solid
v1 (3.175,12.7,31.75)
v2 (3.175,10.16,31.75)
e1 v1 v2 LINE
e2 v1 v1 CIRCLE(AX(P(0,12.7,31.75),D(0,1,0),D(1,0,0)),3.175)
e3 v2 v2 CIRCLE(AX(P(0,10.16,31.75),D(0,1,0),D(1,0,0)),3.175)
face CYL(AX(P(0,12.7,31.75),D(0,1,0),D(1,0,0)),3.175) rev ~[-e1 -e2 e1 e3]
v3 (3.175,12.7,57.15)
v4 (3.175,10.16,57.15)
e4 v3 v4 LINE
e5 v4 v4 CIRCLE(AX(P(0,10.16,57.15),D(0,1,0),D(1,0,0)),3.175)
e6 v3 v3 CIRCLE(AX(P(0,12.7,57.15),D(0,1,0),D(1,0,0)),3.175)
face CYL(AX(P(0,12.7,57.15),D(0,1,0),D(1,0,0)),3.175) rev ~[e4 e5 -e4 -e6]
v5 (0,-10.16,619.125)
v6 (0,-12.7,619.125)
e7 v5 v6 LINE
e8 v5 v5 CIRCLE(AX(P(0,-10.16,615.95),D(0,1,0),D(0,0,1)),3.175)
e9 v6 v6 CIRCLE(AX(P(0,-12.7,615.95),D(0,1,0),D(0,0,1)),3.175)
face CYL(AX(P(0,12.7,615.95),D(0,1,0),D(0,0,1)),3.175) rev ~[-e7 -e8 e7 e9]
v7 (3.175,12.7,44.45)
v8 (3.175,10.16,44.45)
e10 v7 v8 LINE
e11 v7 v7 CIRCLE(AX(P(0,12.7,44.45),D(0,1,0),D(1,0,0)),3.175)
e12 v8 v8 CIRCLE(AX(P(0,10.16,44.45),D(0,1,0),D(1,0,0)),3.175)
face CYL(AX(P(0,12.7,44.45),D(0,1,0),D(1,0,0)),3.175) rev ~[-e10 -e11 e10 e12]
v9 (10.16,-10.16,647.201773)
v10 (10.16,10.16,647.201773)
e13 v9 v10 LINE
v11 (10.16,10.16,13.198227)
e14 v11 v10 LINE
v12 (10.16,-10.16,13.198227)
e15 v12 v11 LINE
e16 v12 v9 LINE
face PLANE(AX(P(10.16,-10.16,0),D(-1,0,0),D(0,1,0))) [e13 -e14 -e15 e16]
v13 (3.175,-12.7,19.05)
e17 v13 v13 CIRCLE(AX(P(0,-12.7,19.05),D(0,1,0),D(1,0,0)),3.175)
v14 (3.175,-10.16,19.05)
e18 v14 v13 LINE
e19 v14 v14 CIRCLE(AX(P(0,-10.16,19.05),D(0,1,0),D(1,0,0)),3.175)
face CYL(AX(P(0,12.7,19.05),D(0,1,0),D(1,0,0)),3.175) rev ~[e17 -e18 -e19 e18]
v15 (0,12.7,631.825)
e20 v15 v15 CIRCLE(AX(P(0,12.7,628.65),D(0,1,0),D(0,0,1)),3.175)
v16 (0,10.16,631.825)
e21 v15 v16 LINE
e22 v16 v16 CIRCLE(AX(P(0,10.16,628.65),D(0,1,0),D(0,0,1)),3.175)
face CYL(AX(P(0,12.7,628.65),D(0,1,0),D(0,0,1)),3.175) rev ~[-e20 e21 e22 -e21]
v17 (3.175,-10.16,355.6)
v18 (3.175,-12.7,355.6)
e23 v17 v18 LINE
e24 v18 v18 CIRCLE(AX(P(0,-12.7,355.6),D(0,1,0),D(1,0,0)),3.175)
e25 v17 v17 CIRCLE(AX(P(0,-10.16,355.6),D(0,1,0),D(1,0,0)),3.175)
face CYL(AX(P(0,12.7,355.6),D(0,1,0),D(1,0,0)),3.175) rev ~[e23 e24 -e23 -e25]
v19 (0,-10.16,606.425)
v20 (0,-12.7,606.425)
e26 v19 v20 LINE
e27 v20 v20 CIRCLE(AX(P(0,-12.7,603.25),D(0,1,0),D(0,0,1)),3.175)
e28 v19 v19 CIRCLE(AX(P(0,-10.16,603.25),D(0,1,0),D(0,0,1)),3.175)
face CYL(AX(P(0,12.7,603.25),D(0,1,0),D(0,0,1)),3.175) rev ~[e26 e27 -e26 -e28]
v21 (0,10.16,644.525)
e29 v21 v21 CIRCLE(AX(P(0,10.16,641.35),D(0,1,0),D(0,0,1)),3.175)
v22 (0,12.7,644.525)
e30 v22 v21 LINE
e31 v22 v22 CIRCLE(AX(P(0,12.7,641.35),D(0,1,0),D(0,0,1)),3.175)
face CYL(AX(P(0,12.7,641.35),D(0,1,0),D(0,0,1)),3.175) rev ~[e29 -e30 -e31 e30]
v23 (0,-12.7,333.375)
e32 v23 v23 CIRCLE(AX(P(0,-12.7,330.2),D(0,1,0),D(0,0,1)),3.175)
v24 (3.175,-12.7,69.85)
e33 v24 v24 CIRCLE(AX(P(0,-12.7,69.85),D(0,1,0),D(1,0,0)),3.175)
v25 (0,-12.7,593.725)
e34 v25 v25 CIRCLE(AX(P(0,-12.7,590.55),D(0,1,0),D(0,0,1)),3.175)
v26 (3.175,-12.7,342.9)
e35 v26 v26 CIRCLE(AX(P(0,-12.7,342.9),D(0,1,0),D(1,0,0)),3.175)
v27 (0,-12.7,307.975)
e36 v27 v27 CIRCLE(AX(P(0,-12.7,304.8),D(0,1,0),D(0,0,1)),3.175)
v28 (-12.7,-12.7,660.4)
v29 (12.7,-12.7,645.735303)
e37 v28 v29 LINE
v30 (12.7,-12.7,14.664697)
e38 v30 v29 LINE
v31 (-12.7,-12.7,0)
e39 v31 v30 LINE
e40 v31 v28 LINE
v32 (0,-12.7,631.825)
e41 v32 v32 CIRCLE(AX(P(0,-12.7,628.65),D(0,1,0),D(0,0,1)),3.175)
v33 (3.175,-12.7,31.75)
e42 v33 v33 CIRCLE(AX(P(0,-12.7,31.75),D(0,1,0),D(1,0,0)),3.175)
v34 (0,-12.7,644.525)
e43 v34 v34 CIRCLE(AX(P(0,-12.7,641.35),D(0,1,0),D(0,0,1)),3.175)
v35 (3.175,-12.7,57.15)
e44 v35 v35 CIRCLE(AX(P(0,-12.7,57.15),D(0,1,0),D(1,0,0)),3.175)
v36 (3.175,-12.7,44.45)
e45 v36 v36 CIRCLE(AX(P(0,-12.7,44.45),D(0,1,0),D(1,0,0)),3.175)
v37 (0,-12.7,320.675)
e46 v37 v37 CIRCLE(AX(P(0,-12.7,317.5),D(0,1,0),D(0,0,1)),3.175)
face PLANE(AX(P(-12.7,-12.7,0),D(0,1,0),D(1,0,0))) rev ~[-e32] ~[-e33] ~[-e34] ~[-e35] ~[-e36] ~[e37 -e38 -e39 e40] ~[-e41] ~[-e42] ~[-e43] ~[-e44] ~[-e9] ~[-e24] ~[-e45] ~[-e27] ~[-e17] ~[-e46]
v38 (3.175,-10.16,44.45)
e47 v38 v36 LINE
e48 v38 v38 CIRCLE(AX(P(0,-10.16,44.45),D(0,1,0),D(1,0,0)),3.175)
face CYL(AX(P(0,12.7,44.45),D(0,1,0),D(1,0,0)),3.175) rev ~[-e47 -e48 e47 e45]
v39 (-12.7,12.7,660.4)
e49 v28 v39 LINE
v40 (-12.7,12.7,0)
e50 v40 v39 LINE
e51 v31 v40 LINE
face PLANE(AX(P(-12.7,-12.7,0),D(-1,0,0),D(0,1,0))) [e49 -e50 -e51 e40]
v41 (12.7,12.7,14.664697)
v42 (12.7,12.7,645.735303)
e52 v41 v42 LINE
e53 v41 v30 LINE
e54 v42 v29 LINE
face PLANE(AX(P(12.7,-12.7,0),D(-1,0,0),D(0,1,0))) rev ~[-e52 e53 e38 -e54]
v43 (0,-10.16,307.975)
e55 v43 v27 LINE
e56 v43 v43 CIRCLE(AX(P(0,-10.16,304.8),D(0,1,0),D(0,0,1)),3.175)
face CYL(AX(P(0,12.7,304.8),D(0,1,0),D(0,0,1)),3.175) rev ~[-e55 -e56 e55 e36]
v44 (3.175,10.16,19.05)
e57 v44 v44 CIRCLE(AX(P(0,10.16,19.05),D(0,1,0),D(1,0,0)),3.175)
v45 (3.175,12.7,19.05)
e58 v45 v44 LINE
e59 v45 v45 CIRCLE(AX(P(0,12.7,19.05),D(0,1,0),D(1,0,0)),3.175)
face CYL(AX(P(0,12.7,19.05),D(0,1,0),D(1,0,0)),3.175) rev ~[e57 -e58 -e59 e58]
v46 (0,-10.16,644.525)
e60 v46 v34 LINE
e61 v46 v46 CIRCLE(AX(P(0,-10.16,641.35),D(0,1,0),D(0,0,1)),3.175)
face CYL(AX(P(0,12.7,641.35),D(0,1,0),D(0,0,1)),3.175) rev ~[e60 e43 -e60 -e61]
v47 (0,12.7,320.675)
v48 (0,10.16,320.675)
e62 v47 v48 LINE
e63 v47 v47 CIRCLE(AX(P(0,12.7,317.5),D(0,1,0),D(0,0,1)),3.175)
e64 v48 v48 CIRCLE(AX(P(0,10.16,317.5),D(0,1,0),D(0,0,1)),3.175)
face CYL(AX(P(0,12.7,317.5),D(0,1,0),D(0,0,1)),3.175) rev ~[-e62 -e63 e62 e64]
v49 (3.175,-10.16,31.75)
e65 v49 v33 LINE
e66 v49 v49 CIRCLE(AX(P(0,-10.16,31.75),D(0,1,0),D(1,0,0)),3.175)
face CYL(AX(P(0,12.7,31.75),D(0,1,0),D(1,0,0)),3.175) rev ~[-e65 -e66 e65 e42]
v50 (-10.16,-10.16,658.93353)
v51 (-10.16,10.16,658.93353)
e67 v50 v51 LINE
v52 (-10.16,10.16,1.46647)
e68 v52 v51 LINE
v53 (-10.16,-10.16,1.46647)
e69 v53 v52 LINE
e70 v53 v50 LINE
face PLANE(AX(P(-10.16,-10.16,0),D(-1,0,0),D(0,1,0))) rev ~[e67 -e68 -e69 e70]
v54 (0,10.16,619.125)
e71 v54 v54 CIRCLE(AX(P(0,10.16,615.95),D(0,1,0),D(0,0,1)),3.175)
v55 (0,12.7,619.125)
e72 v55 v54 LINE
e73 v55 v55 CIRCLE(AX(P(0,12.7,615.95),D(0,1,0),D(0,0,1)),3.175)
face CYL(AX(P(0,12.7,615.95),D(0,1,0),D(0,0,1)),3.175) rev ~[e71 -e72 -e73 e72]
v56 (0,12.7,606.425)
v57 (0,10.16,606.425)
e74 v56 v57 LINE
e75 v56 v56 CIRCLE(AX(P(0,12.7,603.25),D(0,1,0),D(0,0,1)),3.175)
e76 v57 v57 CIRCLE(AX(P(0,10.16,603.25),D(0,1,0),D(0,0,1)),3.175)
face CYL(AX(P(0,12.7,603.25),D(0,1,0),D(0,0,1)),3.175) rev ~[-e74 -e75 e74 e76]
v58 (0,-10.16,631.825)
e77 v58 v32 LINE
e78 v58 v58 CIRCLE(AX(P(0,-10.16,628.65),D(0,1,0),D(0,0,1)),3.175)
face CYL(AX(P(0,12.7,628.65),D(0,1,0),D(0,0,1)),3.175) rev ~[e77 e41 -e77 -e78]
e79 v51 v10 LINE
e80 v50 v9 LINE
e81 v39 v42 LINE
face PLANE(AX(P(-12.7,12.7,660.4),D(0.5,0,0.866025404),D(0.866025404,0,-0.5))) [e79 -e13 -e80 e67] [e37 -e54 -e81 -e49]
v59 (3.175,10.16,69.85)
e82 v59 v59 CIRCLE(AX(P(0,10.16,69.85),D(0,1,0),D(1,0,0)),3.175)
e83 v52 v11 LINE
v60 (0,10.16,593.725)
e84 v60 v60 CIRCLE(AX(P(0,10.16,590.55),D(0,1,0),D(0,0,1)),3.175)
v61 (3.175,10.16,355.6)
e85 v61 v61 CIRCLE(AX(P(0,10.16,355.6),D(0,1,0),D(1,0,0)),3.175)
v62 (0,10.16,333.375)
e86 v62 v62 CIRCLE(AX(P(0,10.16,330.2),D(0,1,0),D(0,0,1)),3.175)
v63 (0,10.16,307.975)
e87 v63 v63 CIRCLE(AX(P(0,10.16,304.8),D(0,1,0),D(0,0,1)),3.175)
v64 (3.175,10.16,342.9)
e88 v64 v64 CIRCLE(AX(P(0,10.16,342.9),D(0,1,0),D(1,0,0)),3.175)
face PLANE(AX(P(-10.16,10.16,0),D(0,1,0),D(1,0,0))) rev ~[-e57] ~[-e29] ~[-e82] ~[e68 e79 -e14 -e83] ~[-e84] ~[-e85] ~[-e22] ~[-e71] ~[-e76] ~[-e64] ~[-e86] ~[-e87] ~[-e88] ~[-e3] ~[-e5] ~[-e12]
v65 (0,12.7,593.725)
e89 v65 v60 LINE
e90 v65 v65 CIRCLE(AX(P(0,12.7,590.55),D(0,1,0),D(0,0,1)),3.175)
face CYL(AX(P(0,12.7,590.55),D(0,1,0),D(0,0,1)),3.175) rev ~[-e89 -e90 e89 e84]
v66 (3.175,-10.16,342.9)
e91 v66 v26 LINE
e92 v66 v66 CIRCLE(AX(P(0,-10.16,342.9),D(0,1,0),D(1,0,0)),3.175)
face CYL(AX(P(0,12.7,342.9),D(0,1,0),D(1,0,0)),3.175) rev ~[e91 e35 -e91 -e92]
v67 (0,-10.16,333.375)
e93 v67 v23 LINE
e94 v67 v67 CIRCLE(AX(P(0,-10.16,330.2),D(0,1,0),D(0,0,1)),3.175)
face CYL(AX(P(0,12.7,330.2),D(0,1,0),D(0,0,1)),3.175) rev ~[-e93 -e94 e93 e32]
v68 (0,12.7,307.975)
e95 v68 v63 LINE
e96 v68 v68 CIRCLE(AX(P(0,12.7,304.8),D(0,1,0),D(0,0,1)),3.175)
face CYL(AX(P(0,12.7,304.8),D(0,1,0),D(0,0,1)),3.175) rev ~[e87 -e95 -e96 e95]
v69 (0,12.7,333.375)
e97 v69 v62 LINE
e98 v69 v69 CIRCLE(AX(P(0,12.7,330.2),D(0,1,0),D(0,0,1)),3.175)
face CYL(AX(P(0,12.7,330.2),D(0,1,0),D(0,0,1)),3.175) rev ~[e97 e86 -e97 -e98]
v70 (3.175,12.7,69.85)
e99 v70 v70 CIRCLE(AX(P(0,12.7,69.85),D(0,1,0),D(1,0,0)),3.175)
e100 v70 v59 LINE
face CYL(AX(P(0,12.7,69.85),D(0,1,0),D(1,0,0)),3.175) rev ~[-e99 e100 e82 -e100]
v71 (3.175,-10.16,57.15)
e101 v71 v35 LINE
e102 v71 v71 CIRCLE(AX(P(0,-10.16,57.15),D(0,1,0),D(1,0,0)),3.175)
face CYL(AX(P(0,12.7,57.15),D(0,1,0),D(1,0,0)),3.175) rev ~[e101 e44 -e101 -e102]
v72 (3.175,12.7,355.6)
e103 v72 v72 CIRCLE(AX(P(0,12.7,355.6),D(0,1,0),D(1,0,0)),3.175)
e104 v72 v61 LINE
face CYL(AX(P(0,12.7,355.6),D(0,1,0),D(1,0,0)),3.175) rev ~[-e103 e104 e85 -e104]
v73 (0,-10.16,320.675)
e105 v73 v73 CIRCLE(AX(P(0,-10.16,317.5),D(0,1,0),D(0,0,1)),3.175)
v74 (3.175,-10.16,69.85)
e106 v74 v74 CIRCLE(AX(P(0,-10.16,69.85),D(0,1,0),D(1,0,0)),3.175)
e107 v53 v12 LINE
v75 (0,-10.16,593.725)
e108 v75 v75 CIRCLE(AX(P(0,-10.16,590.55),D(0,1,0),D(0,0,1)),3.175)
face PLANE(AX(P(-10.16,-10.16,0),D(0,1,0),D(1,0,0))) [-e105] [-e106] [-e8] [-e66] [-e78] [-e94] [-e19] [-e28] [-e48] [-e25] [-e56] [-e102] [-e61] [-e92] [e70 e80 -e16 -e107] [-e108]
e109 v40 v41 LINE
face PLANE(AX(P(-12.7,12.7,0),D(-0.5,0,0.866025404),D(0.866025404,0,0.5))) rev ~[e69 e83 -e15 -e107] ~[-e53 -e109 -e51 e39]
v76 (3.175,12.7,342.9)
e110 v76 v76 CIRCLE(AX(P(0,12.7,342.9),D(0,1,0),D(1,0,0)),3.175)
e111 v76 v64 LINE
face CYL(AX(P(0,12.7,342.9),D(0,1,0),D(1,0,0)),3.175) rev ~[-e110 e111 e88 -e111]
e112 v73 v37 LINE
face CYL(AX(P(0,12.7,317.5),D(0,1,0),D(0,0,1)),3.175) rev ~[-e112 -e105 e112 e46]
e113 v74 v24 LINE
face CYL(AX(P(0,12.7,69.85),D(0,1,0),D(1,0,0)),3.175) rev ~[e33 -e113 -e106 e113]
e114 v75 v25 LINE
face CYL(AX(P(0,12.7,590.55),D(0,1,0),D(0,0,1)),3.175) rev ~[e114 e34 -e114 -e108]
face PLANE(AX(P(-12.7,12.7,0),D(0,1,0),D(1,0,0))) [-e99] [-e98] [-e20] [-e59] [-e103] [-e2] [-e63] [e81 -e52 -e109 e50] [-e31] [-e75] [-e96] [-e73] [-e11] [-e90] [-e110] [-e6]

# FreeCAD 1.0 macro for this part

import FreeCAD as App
import Part
import Sketcher
Q = App.Units.Quantity

doc = App.newDocument("Part")
body = doc.addObject("PartDesign::Body", "Body")

sketch1 = doc.addObject("Sketcher::SketchObject", "Sketch")
body.addObject(sketch1)
sketch1.AttachmentSupport = (doc.XY_Plane, [""])
sketch1.MapMode = "FlatFace"
sketch1.addGeometry([
    Part.LineSegment(App.Vector(-13, 13, 0), App.Vector(-13, -13, 0)),
    Part.LineSegment(App.Vector(-13, -13, 0), App.Vector(13, -13, 0)),
    Part.LineSegment(App.Vector(13, -13, 0), App.Vector(13, 13, 0)),
    Part.LineSegment(App.Vector(13, 13, 0), App.Vector(-13, 13, 0)),
    Part.LineSegment(App.Vector(10, -10, 0), App.Vector(-10, -10, 0)),
    Part.LineSegment(App.Vector(-10, -10, 0), App.Vector(-10, 10, 0)),
    Part.LineSegment(App.Vector(-10, 10, 0), App.Vector(10, 10, 0)),
    Part.LineSegment(App.Vector(10, 10, 0), App.Vector(10, -10, 0)),
], False)
sketch1.addConstraint([
    Sketcher.Constraint("Coincident", 0, 2, 1, 1),
    Sketcher.Constraint("Coincident", 1, 2, 2, 1),
    Sketcher.Constraint("Coincident", 2, 2, 3, 1),
    Sketcher.Constraint("Coincident", 3, 2, 0, 1),
    Sketcher.Constraint("Coincident", 4, 2, 5, 1),
    Sketcher.Constraint("Coincident", 5, 2, 6, 1),
    Sketcher.Constraint("Coincident", 6, 2, 7, 1),
    Sketcher.Constraint("Coincident", 7, 2, 4, 1),
    Sketcher.Constraint("Vertical", 0),
    Sketcher.Constraint("Horizontal", 1),
    Sketcher.Constraint("Vertical", 2),
    Sketcher.Constraint("Horizontal", 3),
    Sketcher.Constraint("Horizontal", 4),
    Sketcher.Constraint("Vertical", 5),
    Sketcher.Constraint("Horizontal", 6),
    Sketcher.Constraint("Vertical", 7),
    Sketcher.Constraint("Symmetric", 0, 2, 2, 2, -1, 1),
    Sketcher.Constraint("Symmetric", 4, 2, 6, 2, -1, 1),
    Sketcher.Constraint("Equal", 3, 0),
    Sketcher.Constraint("Equal", 6, 5),
    Sketcher.Constraint("DistanceX", 1, 1, 1, 2, Q("1 in")),
    Sketcher.Constraint("DistanceX", 4, 2, 4, 1, Q("0.8 in")),
])
pad1 = doc.addObject("PartDesign::Pad", "Pad")
body.addObject(pad1)
pad1.Profile = sketch1
pad1.Length = Q("26 in")

sketch2 = doc.addObject("Sketcher::SketchObject", "Sketch001")
body.addObject(sketch2)
sketch2.AttachmentSupport = (doc.XZ_Plane, [""])
sketch2.MapMode = "FlatFace"
sketch2.AttachmentOffset = App.Placement(App.Vector(0, 0, -0.5 * 25.4), App.Rotation())
sketch2.addGeometry([
    Part.LineSegment(App.Vector(13, 646, 0), App.Vector(-13, 660, 0)),
    Part.LineSegment(App.Vector(-13, 660, 0), App.Vector(13, 660, 0)),
    Part.LineSegment(App.Vector(13, 660, 0), App.Vector(13, 646, 0)),
    Part.LineSegment(App.Vector(13, 0, 0), App.Vector(-13, 0, 0)),
    Part.LineSegment(App.Vector(-13, 0, 0), App.Vector(13, 15, 0)),
    Part.LineSegment(App.Vector(13, 15, 0), App.Vector(13, 0, 0)),
], False)
sketch2.addConstraint([
    Sketcher.Constraint("Coincident", 0, 2, 1, 1),
    Sketcher.Constraint("Coincident", 1, 2, 2, 1),
    Sketcher.Constraint("Coincident", 2, 2, 0, 1),
    Sketcher.Constraint("Coincident", 3, 2, 4, 1),
    Sketcher.Constraint("Coincident", 4, 2, 5, 1),
    Sketcher.Constraint("Coincident", 5, 2, 3, 1),
    Sketcher.Constraint("Horizontal", 1),
    Sketcher.Constraint("Vertical", 2),
    Sketcher.Constraint("Horizontal", 3),
    Sketcher.Constraint("Vertical", 5),
    Sketcher.Constraint("Symmetric", 3, 2, 5, 2, -1, 1),
    Sketcher.Constraint("Vertical", 0, 2, 3, 2),
    Sketcher.Constraint("Vertical", 2, 2, 4, 2),
    Sketcher.Constraint("Equal", 2, 5),
    Sketcher.Constraint("DistanceX", 1, 1, 1, 2, Q("1 in")),
    Sketcher.Constraint("DistanceY", -1, 1, 0, 2, Q("26 in")),
    Sketcher.Constraint("Angle", 0, Q("150 deg")),
])
pocket1 = doc.addObject("PartDesign::Pocket", "Pocket")
body.addObject(pocket1)
pocket1.Profile = sketch2
pocket1.Type = "ThroughAll"
pocket1.Reversed = True

sketch3 = doc.addObject("Sketcher::SketchObject", "Sketch002")
body.addObject(sketch3)
sketch3.AttachmentSupport = (doc.XZ_Plane, [""])
sketch3.MapMode = "FlatFace"
sketch3.AttachmentOffset = App.Placement(App.Vector(0, 0, -0.5 * 25.4), App.Rotation())
sketch3.addGeometry([
    Part.Circle(App.Vector(0, 330.2, 0), App.Vector(0, 0, 1), 3.2),
    Part.Circle(App.Vector(0, 317.5, 0), App.Vector(0, 0, 1), 3.2),
    Part.Circle(App.Vector(0, 304.8, 0), App.Vector(0, 0, 1), 3.2),
    Part.Circle(App.Vector(0, 355.6, 0), App.Vector(0, 0, 1), 3.2),
    Part.Circle(App.Vector(0, 342.9, 0), App.Vector(0, 0, 1), 3.2),
    Part.Circle(App.Vector(0, 641.4, 0), App.Vector(0, 0, 1), 3.2),
    Part.Circle(App.Vector(0, 628.6, 0), App.Vector(0, 0, 1), 3.2),
    Part.Circle(App.Vector(0, 616, 0), App.Vector(0, 0, 1), 3.2),
    Part.Circle(App.Vector(0, 603.2, 0), App.Vector(0, 0, 1), 3.2),
    Part.Circle(App.Vector(0, 590.5, 0), App.Vector(0, 0, 1), 3.2),
    Part.Circle(App.Vector(0, 69.8, 0), App.Vector(0, 0, 1), 3.2),
    Part.Circle(App.Vector(0, 57.1, 0), App.Vector(0, 0, 1), 3.2),
    Part.Circle(App.Vector(0, 44.5, 0), App.Vector(0, 0, 1), 3.2),
    Part.Circle(App.Vector(0, 31.8, 0), App.Vector(0, 0, 1), 3.2),
    Part.Circle(App.Vector(0, 19.1, 0), App.Vector(0, 0, 1), 3.2),
], False)
sketch3.addConstraint([
    Sketcher.Constraint("Equal", 0, 1),
    Sketcher.Constraint("Equal", 1, 2),
    Sketcher.Constraint("Equal", 2, 3),
    Sketcher.Constraint("Equal", 3, 4),
    Sketcher.Constraint("Equal", 4, 5),
    Sketcher.Constraint("Equal", 5, 6),
    Sketcher.Constraint("Equal", 6, 7),
    Sketcher.Constraint("Equal", 7, 8),
    Sketcher.Constraint("Equal", 8, 9),
    Sketcher.Constraint("Equal", 9, 10),
    Sketcher.Constraint("Equal", 10, 11),
    Sketcher.Constraint("Equal", 11, 12),
    Sketcher.Constraint("Equal", 12, 13),
    Sketcher.Constraint("Equal", 13, 14),
    Sketcher.Constraint("PointOnObject", 0, 3, -2),
    Sketcher.Constraint("PointOnObject", 1, 3, -2),
    Sketcher.Constraint("PointOnObject", 2, 3, -2),
    Sketcher.Constraint("PointOnObject", 3, 3, -2),
    Sketcher.Constraint("PointOnObject", 4, 3, -2),
    Sketcher.Constraint("PointOnObject", 5, 3, -2),
    Sketcher.Constraint("PointOnObject", 6, 3, -2),
    Sketcher.Constraint("PointOnObject", 7, 3, -2),
    Sketcher.Constraint("PointOnObject", 8, 3, -2),
    Sketcher.Constraint("PointOnObject", 9, 3, -2),
    Sketcher.Constraint("PointOnObject", 10, 3, -2),
    Sketcher.Constraint("PointOnObject", 11, 3, -2),
    Sketcher.Constraint("PointOnObject", 12, 3, -2),
    Sketcher.Constraint("PointOnObject", 13, 3, -2),
    Sketcher.Constraint("PointOnObject", 14, 3, -2),
    Sketcher.Constraint("Diameter", 0, Q("0.25 in")),
    Sketcher.Constraint("DistanceY", -1, 1, 0, 3, Q("13 in")),
    Sketcher.Constraint("DistanceY", -1, 1, 2, 3, Q("12 in")),
    Sketcher.Constraint("DistanceY", -1, 1, 3, 3, Q("14 in")),
    Sketcher.Constraint("DistanceY", 1, 3, 4, 3, Q("1 in")),
    Sketcher.Constraint("DistanceY", 7, 3, 5, 3, Q("1 in")),
    Sketcher.Constraint("DistanceY", 8, 3, 6, 3, Q("1 in")),
    Sketcher.Constraint("DistanceY", 9, 3, 7, 3, Q("1 in")),
    Sketcher.Constraint("DistanceY", 12, 3, 10, 3, Q("1 in")),
    Sketcher.Constraint("DistanceY", 13, 3, 11, 3, Q("1 in")),
    Sketcher.Constraint("DistanceY", 14, 3, 12, 3, Q("1 in")),
    Sketcher.Constraint("DistanceY", -1, 1, 1, 3, Q("12.5 in")),
    Sketcher.Constraint("DistanceY", 6, 3, 5, 3, Q("0.5 in")),
    Sketcher.Constraint("DistanceY", 11, 3, 10, 3, Q("0.5 in")),
    Sketcher.Constraint("DistanceY", -1, 1, 5, 3, Q("25.25 in")),
    Sketcher.Constraint("DistanceY", -1, 1, 10, 3, Q("2.75 in")),
])
pocket2 = doc.addObject("PartDesign::Pocket", "Pocket001")
body.addObject(pocket2)
pocket2.Profile = sketch3
pocket2.Type = "ThroughAll"
pocket2.Reversed = True

doc.recompute()
